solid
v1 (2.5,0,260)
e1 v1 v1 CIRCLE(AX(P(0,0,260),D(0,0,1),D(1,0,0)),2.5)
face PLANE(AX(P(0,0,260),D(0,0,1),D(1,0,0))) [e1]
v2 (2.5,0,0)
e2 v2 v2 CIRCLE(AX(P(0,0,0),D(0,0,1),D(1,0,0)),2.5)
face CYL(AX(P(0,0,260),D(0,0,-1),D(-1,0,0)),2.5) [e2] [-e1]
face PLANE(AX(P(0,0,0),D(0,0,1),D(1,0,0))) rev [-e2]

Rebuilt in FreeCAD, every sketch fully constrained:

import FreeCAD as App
import Part
import Sketcher
from FreeCAD import Vector
Q = App.Units.Quantity

doc = App.newDocument("Part")
body = doc.addObject("PartDesign::Body", "Body")

sketch1 = body.newObject("Sketcher::SketchObject", "Sketch")
sketch1.AttachmentSupport = (doc.getObject("XY_Plane"), [""])
sketch1.MapMode = "FlatFace"
sketch1.addGeometry(Part.Circle(Vector(0, 0, 0), Vector(0, 0, 1), 2.5), False)
sketch1.addConstraint([
    Sketcher.Constraint("Coincident", 0, 3, -1, 1),
    Sketcher.Constraint("Diameter", 0, Q("5 mm")),
])
pad1 = body.newObject("PartDesign::Pad", "Pad")
pad1.Profile = sketch1
pad1.Length = 260

doc.recompute()
